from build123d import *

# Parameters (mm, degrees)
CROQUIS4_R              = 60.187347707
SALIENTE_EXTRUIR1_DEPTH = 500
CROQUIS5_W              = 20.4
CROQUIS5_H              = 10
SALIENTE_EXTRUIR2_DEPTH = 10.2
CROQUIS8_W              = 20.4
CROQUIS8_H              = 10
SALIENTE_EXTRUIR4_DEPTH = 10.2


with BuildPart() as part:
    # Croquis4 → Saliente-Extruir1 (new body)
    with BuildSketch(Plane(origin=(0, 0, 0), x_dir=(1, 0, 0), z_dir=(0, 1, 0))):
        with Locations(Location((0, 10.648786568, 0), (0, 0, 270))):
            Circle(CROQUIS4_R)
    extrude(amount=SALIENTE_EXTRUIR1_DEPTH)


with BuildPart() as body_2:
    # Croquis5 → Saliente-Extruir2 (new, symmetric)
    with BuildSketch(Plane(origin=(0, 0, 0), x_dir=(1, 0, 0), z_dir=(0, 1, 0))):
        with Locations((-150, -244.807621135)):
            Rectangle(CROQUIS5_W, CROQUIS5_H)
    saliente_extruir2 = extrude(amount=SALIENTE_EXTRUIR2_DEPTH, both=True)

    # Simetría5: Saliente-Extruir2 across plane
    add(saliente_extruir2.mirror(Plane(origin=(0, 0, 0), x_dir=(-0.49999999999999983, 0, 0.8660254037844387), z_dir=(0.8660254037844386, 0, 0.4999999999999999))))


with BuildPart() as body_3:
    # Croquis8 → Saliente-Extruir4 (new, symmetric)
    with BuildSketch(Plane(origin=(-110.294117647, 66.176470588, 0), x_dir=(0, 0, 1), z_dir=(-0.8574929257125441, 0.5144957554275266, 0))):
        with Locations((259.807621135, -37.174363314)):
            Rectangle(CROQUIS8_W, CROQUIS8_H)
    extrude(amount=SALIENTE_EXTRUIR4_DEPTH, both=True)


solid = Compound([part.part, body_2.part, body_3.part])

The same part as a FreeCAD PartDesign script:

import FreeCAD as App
import Part
import Sketcher
from FreeCAD import Vector

doc = App.newDocument("Part")
body = doc.addObject("PartDesign::Body", "Body")

# Sketch on XZ plane
sketch1 = body.newObject("Sketcher::SketchObject", "Sketch")
sketch1.AttachmentSupport = (doc.getObject("XZ_Plane"), [""])
sketch1.MapMode = "FlatFace"
sketch1.addGeometry(Part.Circle(Vector(0, -10.648787, 0), Vector(0, 0, 1), 60.187348), False)
sketch1.addConstraint(Sketcher.Constraint("PointOnObject", 0, 3, -2))
sketch1.addConstraint(Sketcher.Constraint("Diameter", 0, 120.374695))
sketch1.addConstraint(Sketcher.Constraint("DistanceY", 0, 3, -1, 1, 10.648787))
pad1 = body.newObject("PartDesign::Pad", "Pad")
pad1.Profile = sketch1
pad1.Length = 500
pad1.Reversed = True
body2 = doc.addObject("PartDesign::Body", "Body001")

# Sketch on XZ plane
sketch2 = body2.newObject("Sketcher::SketchObject", "Sketch001")
sketch2.AttachmentSupport = (doc.getObject("XZ_Plane001"), [""])
sketch2.MapMode = "FlatFace"
sketch2.addGeometry(Part.LineSegment(Vector(-160.2, 239.807621, 0), Vector(-160.2, 249.807621, 0)), False)
sketch2.addGeometry(Part.LineSegment(Vector(-160.2, 249.807621, 0), Vector(-139.8, 249.807621, 0)), False)
sketch2.addGeometry(Part.LineSegment(Vector(-139.8, 249.807621, 0), Vector(-139.8, 239.807621, 0)), False)
sketch2.addGeometry(Part.LineSegment(Vector(-139.8, 239.807621, 0), Vector(-160.2, 239.807621, 0)), False)
sketch2.addConstraint(Sketcher.Constraint("Coincident", 0, 2, 1, 1))
sketch2.addConstraint(Sketcher.Constraint("Coincident", 1, 2, 2, 1))
sketch2.addConstraint(Sketcher.Constraint("Coincident", 2, 2, 3, 1))
sketch2.addConstraint(Sketcher.Constraint("Coincident", 3, 2, 0, 1))
sketch2.addConstraint(Sketcher.Constraint("Vertical", 0))
sketch2.addConstraint(Sketcher.Constraint("Horizontal", 1))
sketch2.addConstraint(Sketcher.Constraint("Vertical", 2))
sketch2.addConstraint(Sketcher.Constraint("Horizontal", 3))
sketch2.addConstraint(Sketcher.Constraint("DistanceY", 0, 1, 0, 2, 10.0))
sketch2.addConstraint(Sketcher.Constraint("DistanceX", 1, 1, 1, 2, 20.4))
sketch2.addConstraint(Sketcher.Constraint("DistanceX", 0, 2, -1, 1, 160.2))
sketch2.addConstraint(Sketcher.Constraint("DistanceY", -1, 1, 0, 2, 249.807621))
pad2 = body2.newObject("PartDesign::Pad", "Pad001")
pad2.Profile = sketch2
pad2.Length = 20.4
pad2.Midplane = True
doc.recompute()

datumplane = body2.newObject("PartDesign::Plane", "DatumPlane")
datumplane.Placement = App.Placement(Vector(0, 0, 0), App.Rotation(Vector(-0.5, 0, 0.866025404), Vector(0, -1, 0), Vector(0.866025404, 0, 0.5), "ZXY"))
mirrored = body2.newObject("PartDesign::Mirrored", "Mirrored")
mirrored.Originals = [pad2]
mirrored.MirrorPlane = (datumplane, [""])
body2.Tip = mirrored
body3 = doc.addObject("PartDesign::Body", "Body002")

# Sketch on an angled plane
sketch3 = body3.newObject("Sketcher::SketchObject", "Sketch002")
sketch3.Placement = App.Placement(Vector(-110.294118, 66.176471, 0), App.Rotation(Vector(0, 0, 1), Vector(0.514495755, 0.857492926, 0), Vector(-0.857492926, 0.514495755, 0), "ZXY"))
sketch3.addGeometry(Part.LineSegment(Vector(249.607621, -32.174363, 0), Vector(249.607621, -42.174363, 0)), False)
sketch3.addGeometry(Part.LineSegment(Vector(249.607621, -42.174363, 0), Vector(270.007621, -42.174363, 0)), False)
sketch3.addGeometry(Part.LineSegment(Vector(270.007621, -42.174363, 0), Vector(270.007621, -32.174363, 0)), False)
sketch3.addGeometry(Part.LineSegment(Vector(270.007621, -32.174363, 0), Vector(249.607621, -32.174363, 0)), False)
sketch3.addConstraint(Sketcher.Constraint("Coincident", 0, 2, 1, 1))
sketch3.addConstraint(Sketcher.Constraint("Coincident", 1, 2, 2, 1))
sketch3.addConstraint(Sketcher.Constraint("Coincident", 2, 2, 3, 1))
sketch3.addConstraint(Sketcher.Constraint("Coincident", 3, 2, 0, 1))
sketch3.addConstraint(Sketcher.Constraint("Vertical", 0))
sketch3.addConstraint(Sketcher.Constraint("Horizontal", 1))
sketch3.addConstraint(Sketcher.Constraint("Vertical", 2))
sketch3.addConstraint(Sketcher.Constraint("Horizontal", 3))
sketch3.addConstraint(Sketcher.Constraint("DistanceY", 0, 2, 0, 1, 10.0))
sketch3.addConstraint(Sketcher.Constraint("DistanceX", 1, 1, 1, 2, 20.4))
sketch3.addConstraint(Sketcher.Constraint("DistanceX", -1, 1, 0, 2, 249.607621))
sketch3.addConstraint(Sketcher.Constraint("DistanceY", 0, 2, -1, 1, 42.174363))
pad3 = body3.newObject("PartDesign::Pad", "Pad002")
pad3.Profile = sketch3
pad3.Length = 20.4
pad3.Midplane = True

doc.recompute()
